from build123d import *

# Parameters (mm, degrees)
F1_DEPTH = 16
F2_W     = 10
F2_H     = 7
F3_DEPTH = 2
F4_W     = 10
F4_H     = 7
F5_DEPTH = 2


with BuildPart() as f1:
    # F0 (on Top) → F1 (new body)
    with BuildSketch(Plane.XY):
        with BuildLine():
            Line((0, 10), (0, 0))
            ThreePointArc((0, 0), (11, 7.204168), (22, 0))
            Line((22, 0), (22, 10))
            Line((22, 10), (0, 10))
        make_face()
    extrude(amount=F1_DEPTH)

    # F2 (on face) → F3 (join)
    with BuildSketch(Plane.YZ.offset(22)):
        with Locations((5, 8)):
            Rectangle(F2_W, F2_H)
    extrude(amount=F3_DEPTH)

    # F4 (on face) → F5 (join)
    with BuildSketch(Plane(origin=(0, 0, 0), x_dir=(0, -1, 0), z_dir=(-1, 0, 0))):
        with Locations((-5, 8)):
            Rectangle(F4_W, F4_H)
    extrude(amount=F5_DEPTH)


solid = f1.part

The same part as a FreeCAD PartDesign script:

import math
import FreeCAD as App
import Part
import Sketcher
Q = App.Units.Quantity


def add_polygon(sketch, points):
    """Adds a closed chain of lines whose ends are joined by coincident constraints."""
    first, n = sketch.GeometryCount, len(points)
    for a, b in zip(points, points[1:] + points[:1]):
        sketch.addGeometry(Part.LineSegment(App.Vector(*a, 0), App.Vector(*b, 0)), False)
    for i in range(n):
        sketch.addConstraint(Sketcher.Constraint("Coincident", first + i, 2, first + (i + 1) % n, 1))

doc = App.newDocument("Part")
body = doc.addObject("PartDesign::Body", "Body")

# Sketch on XY plane
sketch1 = body.newObject("Sketcher::SketchObject", "Sketch")
sketch1.AttachmentSupport = (doc.getObject("XY_Plane"), [""])
sketch1.MapMode = "FlatFace"
sketch1.addGeometry([
    Part.LineSegment(App.Vector(0, 10, 0), App.Vector(0, 0, 0)),
    Part.ArcOfCircle(Part.Circle(App.Vector(11, -4.795832, 0), App.Vector(0, 0, 1), 12), math.radians(23.556468), math.radians(156.443532)),
    Part.LineSegment(App.Vector(22, 0, 0), App.Vector(22, 10, 0)),
    Part.LineSegment(App.Vector(22, 10, 0), App.Vector(0, 10, 0)),
], False)
sketch1.addConstraint([
    Sketcher.Constraint("Coincident", 0, 2, 1, 2),
    Sketcher.Constraint("Coincident", 1, 1, 2, 1),
    Sketcher.Constraint("Coincident", 2, 2, 3, 1),
    Sketcher.Constraint("Coincident", 3, 2, 0, 1),
    Sketcher.Constraint("Vertical", 0),
    Sketcher.Constraint("Vertical", 2),
    Sketcher.Constraint("Horizontal", 3),
    Sketcher.Constraint("Coincident", 0, 2, -1, 1),
    Sketcher.Constraint("PointOnObject", 1, 1, -1),
    Sketcher.Constraint("Radius", 1, Q("12 mm")),
    Sketcher.Constraint("DistanceX", 3, 2, 3, 1, Q("22 mm")),
    Sketcher.Constraint("DistanceY", 0, 2, 0, 1, Q("10 mm")),
])
pad1 = body.newObject("PartDesign::Pad", "Pad")
pad1.Profile = sketch1
pad1.Length = 16

# Sketch on YZ plane
sketch2 = body.newObject("Sketcher::SketchObject", "Sketch001")
sketch2.AttachmentSupport = (doc.getObject("YZ_Plane"), [""])
sketch2.MapMode = "FlatFace"
sketch2.AttachmentOffset = App.Placement(App.Vector(0, 0, 22), App.Rotation())
add_polygon(sketch2, [(0, 11.5), (0, 4.5), (10, 4.5), (10, 11.5)])  # lines 0-3
sketch2.addConstraint([
    Sketcher.Constraint("Vertical", 0),
    Sketcher.Constraint("Horizontal", 1),
    Sketcher.Constraint("Vertical", 2),
    Sketcher.Constraint("Horizontal", 3),
    Sketcher.Constraint("PointOnObject", 0, 2, -2),
    Sketcher.Constraint("DistanceX", 1, 1, 1, 2, Q("10 mm")),
    Sketcher.Constraint("DistanceY", 0, 2, 0, 1, Q("7 mm")),
    Sketcher.Constraint("DistanceY", -1, 1, 0, 2, Q("4.5 mm")),
])
pad2 = body.newObject("PartDesign::Pad", "Pad001")
pad2.Profile = sketch2
pad2.Length = 2

# Sketch on YZ plane
sketch3 = body.newObject("Sketcher::SketchObject", "Sketch002")
sketch3.AttachmentSupport = (doc.getObject("YZ_Plane"), [""])
sketch3.MapMode = "FlatFace"
add_polygon(sketch3, [(10, 11.5), (10, 4.5), (0, 4.5), (0, 11.5)])  # lines 0-3
sketch3.addConstraint([
    Sketcher.Constraint("Vertical", 0),
    Sketcher.Constraint("Horizontal", 1),
    Sketcher.Constraint("Vertical", 2),
    Sketcher.Constraint("Horizontal", 3),
    Sketcher.Constraint("PointOnObject", 1, 2, -2),
    Sketcher.Constraint("DistanceX", 1, 2, 1, 1, Q("10 mm")),
    Sketcher.Constraint("DistanceY", 0, 2, 0, 1, Q("7 mm")),
    Sketcher.Constraint("DistanceY", -1, 1, 0, 2, Q("4.5 mm")),
])
pad3 = body.newObject("PartDesign::Pad", "Pad002")
pad3.Profile = sketch3
pad3.Length = 2
pad3.Reversed = True

doc.recompute()
